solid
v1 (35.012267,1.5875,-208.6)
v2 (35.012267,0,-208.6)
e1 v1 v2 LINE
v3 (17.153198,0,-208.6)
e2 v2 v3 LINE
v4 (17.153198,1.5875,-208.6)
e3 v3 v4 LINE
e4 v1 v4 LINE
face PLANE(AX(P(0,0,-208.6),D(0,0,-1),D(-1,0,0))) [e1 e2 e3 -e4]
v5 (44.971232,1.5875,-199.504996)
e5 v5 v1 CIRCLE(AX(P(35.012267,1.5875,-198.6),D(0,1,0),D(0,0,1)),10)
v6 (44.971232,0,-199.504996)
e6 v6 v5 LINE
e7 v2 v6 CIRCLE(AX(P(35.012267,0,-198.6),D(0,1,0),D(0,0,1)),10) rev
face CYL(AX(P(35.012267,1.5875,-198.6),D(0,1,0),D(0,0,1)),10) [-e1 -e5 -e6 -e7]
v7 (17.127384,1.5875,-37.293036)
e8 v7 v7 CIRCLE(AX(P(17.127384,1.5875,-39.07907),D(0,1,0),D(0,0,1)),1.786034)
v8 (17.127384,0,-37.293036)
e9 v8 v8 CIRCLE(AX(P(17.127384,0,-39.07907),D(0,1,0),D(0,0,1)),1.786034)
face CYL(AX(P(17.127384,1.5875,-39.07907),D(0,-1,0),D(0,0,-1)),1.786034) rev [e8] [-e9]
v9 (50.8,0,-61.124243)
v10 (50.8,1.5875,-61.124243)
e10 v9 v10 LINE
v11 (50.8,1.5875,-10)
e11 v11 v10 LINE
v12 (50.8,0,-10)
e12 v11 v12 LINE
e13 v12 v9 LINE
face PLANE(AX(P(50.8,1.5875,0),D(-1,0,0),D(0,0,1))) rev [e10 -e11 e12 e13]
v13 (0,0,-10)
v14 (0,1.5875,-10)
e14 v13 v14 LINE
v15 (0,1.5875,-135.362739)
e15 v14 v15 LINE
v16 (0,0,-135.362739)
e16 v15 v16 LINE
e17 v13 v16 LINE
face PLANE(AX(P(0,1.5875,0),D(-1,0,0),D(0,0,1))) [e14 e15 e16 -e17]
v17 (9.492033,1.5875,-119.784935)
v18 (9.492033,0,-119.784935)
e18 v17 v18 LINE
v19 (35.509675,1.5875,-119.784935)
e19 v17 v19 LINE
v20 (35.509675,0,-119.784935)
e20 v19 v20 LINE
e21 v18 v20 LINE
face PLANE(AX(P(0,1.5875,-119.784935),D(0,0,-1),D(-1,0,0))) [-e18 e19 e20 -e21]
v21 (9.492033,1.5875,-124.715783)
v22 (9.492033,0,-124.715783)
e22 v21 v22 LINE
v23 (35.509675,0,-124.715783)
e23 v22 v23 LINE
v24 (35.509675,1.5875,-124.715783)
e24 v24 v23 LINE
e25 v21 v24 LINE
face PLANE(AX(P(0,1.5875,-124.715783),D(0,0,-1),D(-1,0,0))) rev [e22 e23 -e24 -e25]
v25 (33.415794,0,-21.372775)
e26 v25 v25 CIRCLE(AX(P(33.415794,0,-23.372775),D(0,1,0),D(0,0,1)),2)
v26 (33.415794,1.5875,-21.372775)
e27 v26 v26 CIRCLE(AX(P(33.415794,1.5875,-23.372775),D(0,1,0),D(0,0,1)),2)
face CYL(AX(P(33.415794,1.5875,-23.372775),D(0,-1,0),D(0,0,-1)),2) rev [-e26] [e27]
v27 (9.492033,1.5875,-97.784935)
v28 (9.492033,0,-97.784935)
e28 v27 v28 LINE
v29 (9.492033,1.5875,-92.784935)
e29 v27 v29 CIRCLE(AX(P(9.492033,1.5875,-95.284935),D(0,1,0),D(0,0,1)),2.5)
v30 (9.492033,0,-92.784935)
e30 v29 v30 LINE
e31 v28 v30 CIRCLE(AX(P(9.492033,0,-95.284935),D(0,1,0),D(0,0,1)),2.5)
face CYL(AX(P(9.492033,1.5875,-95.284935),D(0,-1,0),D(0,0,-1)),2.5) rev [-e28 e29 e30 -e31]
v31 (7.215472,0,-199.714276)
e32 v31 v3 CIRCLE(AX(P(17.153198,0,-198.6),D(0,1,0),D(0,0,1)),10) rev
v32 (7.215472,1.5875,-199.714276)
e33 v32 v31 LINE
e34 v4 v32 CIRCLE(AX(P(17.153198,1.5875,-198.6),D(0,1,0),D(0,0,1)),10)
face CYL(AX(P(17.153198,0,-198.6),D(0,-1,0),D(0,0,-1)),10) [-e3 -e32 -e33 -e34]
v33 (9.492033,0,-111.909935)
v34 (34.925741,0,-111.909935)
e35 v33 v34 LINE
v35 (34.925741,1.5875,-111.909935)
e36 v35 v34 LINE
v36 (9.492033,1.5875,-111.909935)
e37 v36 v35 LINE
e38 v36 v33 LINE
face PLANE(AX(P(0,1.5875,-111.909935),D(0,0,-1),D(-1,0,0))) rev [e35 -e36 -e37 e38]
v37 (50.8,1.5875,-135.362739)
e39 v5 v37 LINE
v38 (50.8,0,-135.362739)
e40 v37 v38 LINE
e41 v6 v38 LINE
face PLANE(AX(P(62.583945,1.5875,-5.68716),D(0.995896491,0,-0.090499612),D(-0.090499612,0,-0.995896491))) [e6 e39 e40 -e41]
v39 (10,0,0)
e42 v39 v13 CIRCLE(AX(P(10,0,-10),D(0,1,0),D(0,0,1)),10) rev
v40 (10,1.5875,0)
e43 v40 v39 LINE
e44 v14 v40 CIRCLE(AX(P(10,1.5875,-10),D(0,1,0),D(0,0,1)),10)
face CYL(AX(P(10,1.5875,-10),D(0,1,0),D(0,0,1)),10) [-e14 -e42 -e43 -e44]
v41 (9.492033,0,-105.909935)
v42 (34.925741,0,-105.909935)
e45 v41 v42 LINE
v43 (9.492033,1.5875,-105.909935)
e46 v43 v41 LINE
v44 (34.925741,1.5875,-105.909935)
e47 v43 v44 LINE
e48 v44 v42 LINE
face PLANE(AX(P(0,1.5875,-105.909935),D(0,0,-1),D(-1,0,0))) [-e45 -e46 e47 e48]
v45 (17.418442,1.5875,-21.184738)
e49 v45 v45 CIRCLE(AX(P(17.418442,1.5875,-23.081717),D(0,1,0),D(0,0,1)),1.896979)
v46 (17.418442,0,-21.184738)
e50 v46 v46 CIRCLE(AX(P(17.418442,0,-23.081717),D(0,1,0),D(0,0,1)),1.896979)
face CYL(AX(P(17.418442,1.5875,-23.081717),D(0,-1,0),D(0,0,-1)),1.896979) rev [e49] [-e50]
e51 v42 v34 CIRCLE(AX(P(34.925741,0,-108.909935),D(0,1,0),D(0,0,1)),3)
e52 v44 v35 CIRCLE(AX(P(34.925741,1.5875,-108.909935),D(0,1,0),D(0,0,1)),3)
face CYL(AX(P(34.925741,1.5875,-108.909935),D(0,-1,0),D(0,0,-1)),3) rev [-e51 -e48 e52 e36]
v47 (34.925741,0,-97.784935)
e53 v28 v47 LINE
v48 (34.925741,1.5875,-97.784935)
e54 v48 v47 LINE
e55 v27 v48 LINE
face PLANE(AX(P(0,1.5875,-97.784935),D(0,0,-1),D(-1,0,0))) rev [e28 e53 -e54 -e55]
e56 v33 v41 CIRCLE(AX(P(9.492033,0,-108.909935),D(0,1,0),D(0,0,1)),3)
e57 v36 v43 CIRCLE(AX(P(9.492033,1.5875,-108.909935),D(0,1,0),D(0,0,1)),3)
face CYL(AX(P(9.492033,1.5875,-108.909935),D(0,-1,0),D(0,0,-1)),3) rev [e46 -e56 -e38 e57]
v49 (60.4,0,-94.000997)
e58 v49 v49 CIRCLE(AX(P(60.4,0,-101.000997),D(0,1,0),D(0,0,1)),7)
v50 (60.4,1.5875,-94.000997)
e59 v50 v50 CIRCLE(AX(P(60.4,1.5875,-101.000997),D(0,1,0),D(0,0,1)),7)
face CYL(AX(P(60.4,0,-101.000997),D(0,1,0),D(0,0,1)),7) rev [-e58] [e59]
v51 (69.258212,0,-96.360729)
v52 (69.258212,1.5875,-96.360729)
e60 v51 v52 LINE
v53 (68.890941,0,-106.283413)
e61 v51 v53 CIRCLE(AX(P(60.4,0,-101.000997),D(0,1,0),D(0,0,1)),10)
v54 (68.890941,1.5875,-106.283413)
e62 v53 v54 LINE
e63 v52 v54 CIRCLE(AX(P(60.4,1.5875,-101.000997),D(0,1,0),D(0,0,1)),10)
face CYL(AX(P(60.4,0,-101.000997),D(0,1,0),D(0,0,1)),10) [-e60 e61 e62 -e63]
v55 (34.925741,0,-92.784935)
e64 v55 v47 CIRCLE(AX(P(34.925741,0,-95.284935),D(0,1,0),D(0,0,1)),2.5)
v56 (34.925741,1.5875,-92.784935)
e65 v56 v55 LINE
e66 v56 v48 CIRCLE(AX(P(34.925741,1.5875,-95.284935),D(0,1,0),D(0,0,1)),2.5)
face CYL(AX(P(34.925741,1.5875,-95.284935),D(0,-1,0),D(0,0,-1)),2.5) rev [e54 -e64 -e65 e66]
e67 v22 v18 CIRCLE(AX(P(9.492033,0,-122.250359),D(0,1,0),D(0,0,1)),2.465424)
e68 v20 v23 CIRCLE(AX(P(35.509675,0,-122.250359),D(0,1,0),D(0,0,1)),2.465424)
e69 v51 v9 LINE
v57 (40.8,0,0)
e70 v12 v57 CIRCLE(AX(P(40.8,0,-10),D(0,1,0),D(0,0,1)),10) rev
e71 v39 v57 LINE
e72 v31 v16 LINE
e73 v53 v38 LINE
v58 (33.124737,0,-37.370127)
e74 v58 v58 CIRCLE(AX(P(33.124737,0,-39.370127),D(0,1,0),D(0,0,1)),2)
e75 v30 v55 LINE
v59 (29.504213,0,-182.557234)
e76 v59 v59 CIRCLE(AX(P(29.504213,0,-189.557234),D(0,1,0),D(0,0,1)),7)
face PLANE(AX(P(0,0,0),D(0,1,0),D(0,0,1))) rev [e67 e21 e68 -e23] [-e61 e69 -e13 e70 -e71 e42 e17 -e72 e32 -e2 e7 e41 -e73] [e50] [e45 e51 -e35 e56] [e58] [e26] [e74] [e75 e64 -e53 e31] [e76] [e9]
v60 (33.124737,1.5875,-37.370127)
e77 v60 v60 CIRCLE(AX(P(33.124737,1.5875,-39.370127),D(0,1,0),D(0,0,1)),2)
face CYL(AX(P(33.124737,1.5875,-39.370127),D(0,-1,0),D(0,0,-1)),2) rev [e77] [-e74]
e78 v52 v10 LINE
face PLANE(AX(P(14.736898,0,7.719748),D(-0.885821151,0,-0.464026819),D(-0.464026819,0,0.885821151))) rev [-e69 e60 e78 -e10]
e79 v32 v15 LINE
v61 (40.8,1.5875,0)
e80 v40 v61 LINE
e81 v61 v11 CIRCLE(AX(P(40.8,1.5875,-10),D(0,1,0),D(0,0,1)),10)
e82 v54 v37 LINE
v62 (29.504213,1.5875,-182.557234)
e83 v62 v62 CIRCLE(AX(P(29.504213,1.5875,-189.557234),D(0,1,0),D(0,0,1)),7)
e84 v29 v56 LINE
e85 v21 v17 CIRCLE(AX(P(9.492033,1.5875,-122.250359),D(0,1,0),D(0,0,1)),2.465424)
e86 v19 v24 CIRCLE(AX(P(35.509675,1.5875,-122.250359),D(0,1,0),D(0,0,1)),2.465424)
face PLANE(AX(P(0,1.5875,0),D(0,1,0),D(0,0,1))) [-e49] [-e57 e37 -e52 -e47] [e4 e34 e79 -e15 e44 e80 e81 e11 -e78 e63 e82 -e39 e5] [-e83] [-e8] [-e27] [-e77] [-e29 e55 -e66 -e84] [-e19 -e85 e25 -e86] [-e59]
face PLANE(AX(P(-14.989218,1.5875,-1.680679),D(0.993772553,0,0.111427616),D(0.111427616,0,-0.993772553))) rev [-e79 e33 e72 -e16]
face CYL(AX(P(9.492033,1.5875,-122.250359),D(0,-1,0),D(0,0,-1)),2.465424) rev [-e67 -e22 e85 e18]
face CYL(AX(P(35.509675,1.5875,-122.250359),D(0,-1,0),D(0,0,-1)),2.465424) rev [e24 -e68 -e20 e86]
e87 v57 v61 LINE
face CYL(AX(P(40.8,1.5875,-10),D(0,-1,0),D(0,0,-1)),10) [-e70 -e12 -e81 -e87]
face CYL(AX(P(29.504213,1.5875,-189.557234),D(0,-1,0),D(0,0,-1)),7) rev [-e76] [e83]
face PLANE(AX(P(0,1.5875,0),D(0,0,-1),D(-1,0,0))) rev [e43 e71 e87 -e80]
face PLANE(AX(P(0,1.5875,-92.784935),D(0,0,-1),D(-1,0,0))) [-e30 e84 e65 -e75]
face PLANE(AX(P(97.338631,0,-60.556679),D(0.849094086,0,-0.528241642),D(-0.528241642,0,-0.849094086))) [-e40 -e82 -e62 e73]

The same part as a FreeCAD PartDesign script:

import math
import FreeCAD as App
import Part
import Sketcher
Q = App.Units.Quantity


def edges_at(feature, points):
    """Names of the edges that pass closest to the given points."""
    edges = feature.Shape.Edges
    near = lambda p: min(range(len(edges)), key=lambda i: edges[i].distToShape(Part.Vertex(*p))[0])
    return sorted({f"Edge{near(p) + 1}" for p in points})


def add_polygon(sketch, points):
    """Adds a closed chain of lines whose ends are joined by coincident constraints."""
    first, n = sketch.GeometryCount, len(points)
    for a, b in zip(points, points[1:] + points[:1]):
        sketch.addGeometry(Part.LineSegment(App.Vector(*a, 0), App.Vector(*b, 0)), False)
    for i in range(n):
        sketch.addConstraint(Sketcher.Constraint("Coincident", first + i, 2, first + (i + 1) % n, 1))

doc = App.newDocument("Part")
params = doc.addObject("Spreadsheet::Sheet", "Params")
for row, (alias, value) in enumerate([
    ("sketch1_diameter", "4 mm"),
    ("sketch1_diameter2", "14 mm"),
    ("sketch1_radius", "10 mm"),
    ("sketch1_radius2", "3 mm"),
    ("sketch1_radius3", "2.5 mm"),
    ("pad1_length", "1.5875 mm"),
    ("pocket1_length", "20 mm"),
    ("fillet_radius", "10 mm"),
    ("fillet2_radius", "10 mm"),
    ("sketch3_radius", "10 mm"),
    ("pad2_length", "1.5875 mm"),
    ("sketch4_diameter", "14 mm"),
    ("pocket2_length", "1.5875 mm"),
], start=1):
    params.set(f"A{row}", alias)
    params.set(f"B{row}", "=" + value)
    params.setAlias(f"B{row}", alias)

body = doc.addObject("PartDesign::Body", "Body")

sketch1 = body.newObject("Sketcher::SketchObject", "Sketch")
sketch1.AttachmentSupport = (doc.getObject("XZ_Plane"), [""])
sketch1.MapMode = "FlatFace"
sketch1.addGeometry([
    Part.LineSegment(App.Vector(42.3, -228.6, 0), App.Vector(10.5, -228.6, 0)),
    Part.LineSegment(App.Vector(10.5, -228.6, 0), App.Vector(0, -135.4, 0)),
    Part.LineSegment(App.Vector(0, -135.4, 0), App.Vector(0, 0, 0)),
    Part.LineSegment(App.Vector(0, 0, 0), App.Vector(50.8, 0, 0)),
    Part.LineSegment(App.Vector(50.8, 0, 0), App.Vector(50.8, -98.2, 0)),
    Part.ArcOfCircle(Part.Circle(App.Vector(60.4, -101, 0), App.Vector(0, 0, 1), 10), math.radians(164), math.radians(196)),
    Part.LineSegment(App.Vector(50.8, -103.8, 0), App.Vector(50.8, -135.4, 0)),
    Part.LineSegment(App.Vector(50.8, -135.4, 0), App.Vector(42.3, -228.6, 0)),
    Part.Circle(App.Vector(17.4, -23.1, 0), App.Vector(0, 0, 1), 1.9),
    Part.Circle(App.Vector(17.1, -39.1, 0), App.Vector(0, 0, 1), 1.8),
    Part.ArcOfCircle(Part.Circle(App.Vector(34.9, -95.3, 0), App.Vector(0, 0, 1), 2.5), math.radians(0), math.radians(90)),
    Part.LineSegment(App.Vector(34.9, -92.8, 0), App.Vector(9.5, -92.8, 0)),
    Part.ArcOfCircle(Part.Circle(App.Vector(9.5, -95.3, 0), App.Vector(0, 0, 1), 2.5), math.radians(90), math.radians(270)),
    Part.LineSegment(App.Vector(9.5, -97.8, 0), App.Vector(34.9, -97.8, 0)),
    Part.ArcOfCircle(Part.Circle(App.Vector(34.9, -95.3, 0), App.Vector(0, 0, 1), 2.5), math.radians(-90), math.radians(0)),
    Part.Circle(App.Vector(33.4, -23.4, 0), App.Vector(0, 0, 1), 2),
    Part.Circle(App.Vector(33.1, -39.4, 0), App.Vector(0, 0, 1), 2),
    Part.ArcOfCircle(Part.Circle(App.Vector(34.9, -108.9, 0), App.Vector(0, 0, 1), 3), math.radians(0), math.radians(90)),
    Part.LineSegment(App.Vector(34.9, -105.9, 0), App.Vector(9.5, -105.9, 0)),
    Part.ArcOfCircle(Part.Circle(App.Vector(9.5, -108.9, 0), App.Vector(0, 0, 1), 3), math.radians(90), math.radians(270)),
    Part.LineSegment(App.Vector(9.5, -111.9, 0), App.Vector(34.9, -111.9, 0)),
    Part.ArcOfCircle(Part.Circle(App.Vector(34.9, -108.9, 0), App.Vector(0, 0, 1), 3), math.radians(-90), math.radians(0)),
    Part.ArcOfCircle(Part.Circle(App.Vector(35.5, -122.3, 0), App.Vector(0, 0, 1), 2.5), math.radians(0), math.radians(90)),
    Part.LineSegment(App.Vector(35.5, -119.8, 0), App.Vector(9.5, -119.8, 0)),
    Part.ArcOfCircle(Part.Circle(App.Vector(9.5, -122.3, 0), App.Vector(0, 0, 1), 2.5), math.radians(90), math.radians(270)),
    Part.LineSegment(App.Vector(9.5, -124.7, 0), App.Vector(35.5, -124.7, 0)),
    Part.ArcOfCircle(Part.Circle(App.Vector(35.5, -122.3, 0), App.Vector(0, 0, 1), 2.5), math.radians(-90), math.radians(0)),
    Part.Circle(App.Vector(29.5, -189.6, 0), App.Vector(0, 0, 1), 7),
], False)
sketch1.addConstraint([
    Sketcher.Constraint("Coincident", 0, 2, 1, 1),
    Sketcher.Constraint("Coincident", 1, 2, 2, 1),
    Sketcher.Constraint("Coincident", 2, 2, 3, 1),
    Sketcher.Constraint("Coincident", 3, 2, 4, 1),
    Sketcher.Constraint("Coincident", 4, 2, 5, 1),
    Sketcher.Constraint("Coincident", 5, 2, 6, 1),
    Sketcher.Constraint("Coincident", 6, 2, 7, 1),
    Sketcher.Constraint("Coincident", 7, 2, 0, 1),
    Sketcher.Constraint("Tangent", 10, 2, 11, 1),
    Sketcher.Constraint("Tangent", 11, 2, 12, 1),
    Sketcher.Constraint("Tangent", 12, 2, 13, 1),
    Sketcher.Constraint("Tangent", 13, 2, 14, 1),
    Sketcher.Constraint("Tangent", 14, 2, 10, 1),
    Sketcher.Constraint("Tangent", 17, 2, 18, 1),
    Sketcher.Constraint("Tangent", 18, 2, 19, 1),
    Sketcher.Constraint("Tangent", 19, 2, 20, 1),
    Sketcher.Constraint("Tangent", 20, 2, 21, 1),
    Sketcher.Constraint("Tangent", 21, 2, 17, 1),
    Sketcher.Constraint("Tangent", 22, 2, 23, 1),
    Sketcher.Constraint("Tangent", 23, 2, 24, 1),
    Sketcher.Constraint("Tangent", 24, 2, 25, 1),
    Sketcher.Constraint("Tangent", 25, 2, 26, 1),
    Sketcher.Constraint("Tangent", 26, 2, 22, 1),
    Sketcher.Constraint("Horizontal", 0),
    Sketcher.Constraint("Vertical", 2),
    Sketcher.Constraint("Horizontal", 3),
    Sketcher.Constraint("Vertical", 4),
    Sketcher.Constraint("Vertical", 6),
    Sketcher.Constraint("Horizontal", 11),
    Sketcher.Constraint("Horizontal", 13),
    Sketcher.Constraint("Horizontal", 18),
    Sketcher.Constraint("Horizontal", 20),
    Sketcher.Constraint("Horizontal", 23),
    Sketcher.Constraint("Horizontal", 25),
    Sketcher.Constraint("Coincident", 2, 2, -1, 1),
    Sketcher.Constraint("Equal", 10, 12),
    Sketcher.Constraint("Equal", 15, 16),
    Sketcher.Constraint("Equal", 17, 19),
    Sketcher.Constraint("Equal", 22, 24),
    Sketcher.Constraint("Horizontal", 1, 2, 6, 2),
    Sketcher.Constraint("Horizontal", 12, 3, 14, 2),
    Sketcher.Constraint("Horizontal", 19, 3, 21, 2),
    Sketcher.Constraint("Horizontal", 24, 3, 26, 2),
    Sketcher.Constraint("Vertical", 14, 3, 17, 3),
    Sketcher.Constraint("Vertical", 12, 3, 19, 3),
    Sketcher.Constraint("Vertical", 19, 3, 24, 3),
    Sketcher.Constraint("Vertical", 4, 2, 5, 2),
    Sketcher.Constraint("Diameter", 15, Q("4 mm")),
    Sketcher.Constraint("Diameter", 27, Q("14 mm")),
    Sketcher.Constraint("Radius", 5, Q("10 mm")),
    Sketcher.Constraint("Radius", 17, Q("3 mm")),
    Sketcher.Constraint("Radius", 10, Q("2.5 mm")),
    Sketcher.Constraint("DistanceX", 3, 1, 3, 2, Q("50.8 mm")),
    Sketcher.Constraint("DistanceX", -1, 1, 5, 3, Q("60.4 mm")),
    Sketcher.Constraint("DistanceY", 0, 2, -1, 1, Q("228.6 mm")),
    Sketcher.Constraint("Diameter", 8, Q("3.793958 mm")),
    Sketcher.Constraint("Diameter", 9, Q("3.572067 mm")),
    Sketcher.Constraint("Radius", 22, Q("2.465424 mm")),
    Sketcher.Constraint("DistanceY", 17, 3, 10, 3, Q("13.625 mm")),
    Sketcher.Constraint("DistanceY", 22, 2, 20, 2, Q("7.875 mm")),
    Sketcher.Constraint("DistanceY", 2, 1, 2, 2, Q("135.362739 mm")),
    Sketcher.Constraint("DistanceX", -1, 1, 26, 2, Q("37.975099 mm")),
    Sketcher.Constraint("DistanceX", 8, 3, 10, 3, Q("17.507299 mm")),
    Sketcher.Constraint("DistanceY", 27, 3, 17, 3, Q("80.647299 mm")),
    Sketcher.Constraint("Distance", 1, Q("93.821529 mm")),
    Sketcher.Constraint("DistanceX", 0, 2, 0, 1, Q("31.872987 mm")),
    Sketcher.Constraint("DistanceX", 11, 2, 11, 1, Q("25.433708 mm")),
    Sketcher.Constraint("DistanceX", 23, 2, 23, 1, Q("26.017642 mm")),
    Sketcher.Constraint("DistanceY", 4, 2, 4, 1, Q("98.200997 mm")),
    Sketcher.Constraint("DistanceY", 9, 3, -1, 1, Q("39.07907 mm")),
    Sketcher.Constraint("DistanceY", 22, 3, -1, 1, Q("122.250359 mm")),
    Sketcher.Constraint("DistanceY", 5, 3, 8, 3, Q("77.91928 mm")),
    Sketcher.Constraint("DistanceX", 12, 3, 9, 3, Q("7.635351 mm")),
    Sketcher.Constraint("DistanceX", 9, 3, 15, 3, Q("16.28841 mm")),
    Sketcher.Constraint("DistanceY", 10, 3, 15, 3, Q("71.912161 mm")),
    Sketcher.Constraint("DistanceY", 16, 3, 8, 3, Q("16.28841 mm")),
    Sketcher.Constraint("DistanceX", 27, 3, 22, 3, Q("6.005462 mm")),
    Sketcher.Constraint("DistanceX", -1, 1, 16, 3, Q("33.124737 mm")),
])
sketch1.setExpression("Constraints[47]", "Params.sketch1_diameter")
sketch1.setExpression("Constraints[48]", "Params.sketch1_diameter2")
sketch1.setExpression("Constraints[49]", "Params.sketch1_radius")
sketch1.setExpression("Constraints[50]", "Params.sketch1_radius2")
sketch1.setExpression("Constraints[51]", "Params.sketch1_radius3")
pad1 = body.newObject("PartDesign::Pad", "Pad")
pad1.Profile = sketch1
pad1.setExpression("Length", "Params.pad1_length")
pad1.Reversed = True

sketch2 = body.newObject("Sketcher::SketchObject", "Sketch001")
sketch2.AttachmentSupport = (doc.getObject("XY_Plane"), [""])
sketch2.MapMode = "FlatFace"
sketch2.AttachmentOffset = App.Placement(App.Vector(0, 0, -228.6), App.Rotation())
add_polygon(sketch2, [(61, 12), (61, -16), (-5, -16), (-5, 12)])
sketch2.addConstraint([
    Sketcher.Constraint("Vertical", 0),
    Sketcher.Constraint("Horizontal", 1),
    Sketcher.Constraint("Vertical", 2),
    Sketcher.Constraint("Horizontal", 3),
    Sketcher.Constraint("DistanceY", 0, 2, 0, 1, Q("27.800261 mm")),
    Sketcher.Constraint("DistanceX", 1, 2, 1, 1, Q("66.272407 mm")),
    Sketcher.Constraint("DistanceY", 0, 2, -1, 1, Q("15.881071 mm")),
    Sketcher.Constraint("DistanceX", -1, 1, 0, 2, Q("61.310894 mm")),
])
pocket1 = body.newObject("PartDesign::Pocket", "Pocket")
pocket1.Profile = sketch2
pocket1.setExpression("Length", "Params.pocket1_length")
pocket1.Reversed = True
doc.recompute()

fillet = body.newObject("PartDesign::Fillet", "Fillet")
fillet.Base = (pocket1, edges_at(pocket1, [(44.145, 0.794, -208.6)]))
fillet.setExpression("Radius", "Params.fillet_radius")
doc.recompute()

fillet2 = body.newObject("PartDesign::Fillet", "Fillet001")
fillet2.Base = (fillet, edges_at(fillet, [(50.8, 0.794, 0), (0, 0.794, 0), (8.212, 0.794, -208.6)]))
fillet2.setExpression("Radius", "Params.fillet2_radius")

sketch3 = body.newObject("Sketcher::SketchObject", "Sketch002")
sketch3.AttachmentSupport = (doc.getObject("XZ_Plane"), [""])
sketch3.MapMode = "FlatFace"
sketch3.addGeometry([
    Part.LineSegment(App.Vector(51, -135, 0), App.Vector(51, -104, 0)),
    Part.ArcOfCircle(Part.Circle(App.Vector(60, -101, 0), App.Vector(0, 0, 1), 10), math.radians(164), math.radians(196)),
    Part.LineSegment(App.Vector(51, -98, 0), App.Vector(51, -61, 0)),
    Part.LineSegment(App.Vector(51, -61, 0), App.Vector(69, -96, 0)),
    Part.ArcOfCircle(Part.Circle(App.Vector(60, -101, 0), App.Vector(0, 0, 1), 10), math.radians(-32), math.radians(28)),
    Part.LineSegment(App.Vector(69, -106, 0), App.Vector(51, -135, 0)),
], False)
sketch3.addConstraint([
    Sketcher.Constraint("Coincident", 0, 2, 1, 2),
    Sketcher.Constraint("Coincident", 1, 1, 2, 1),
    Sketcher.Constraint("Coincident", 2, 2, 3, 1),
    Sketcher.Constraint("Tangent", 3, 2, 4, 2),
    Sketcher.Constraint("Tangent", 4, 1, 5, 1),
    Sketcher.Constraint("Coincident", 5, 2, 0, 1),
    Sketcher.Constraint("Vertical", 0),
    Sketcher.Constraint("Vertical", 2),
    Sketcher.Constraint("Coincident", 4, 3, 1, 3),
    Sketcher.Constraint("Equal", 1, 4),
    Sketcher.Constraint("Vertical", 0, 2, 1, 1),
    Sketcher.Constraint("Radius", 1, Q("10 mm")),
    Sketcher.Constraint("DistanceX", -1, 1, 1, 3, Q("60.4 mm")),
    Sketcher.Constraint("DistanceX", -1, 1, 0, 2, Q("50.8 mm")),
    Sketcher.Constraint("Distance", 3, Q("39.778329 mm")),
    Sketcher.Constraint("DistanceY", 0, 1, 0, 2, Q("31.561742 mm")),
    Sketcher.Constraint("DistanceY", 3, 2, -1, 1, Q("96.360729 mm")),
])
sketch3.setExpression("Constraints[11]", "Params.sketch3_radius")
pad2 = body.newObject("PartDesign::Pad", "Pad001")
pad2.Profile = sketch3
pad2.setExpression("Length", "Params.pad2_length")
pad2.Reversed = True

sketch4 = body.newObject("Sketcher::SketchObject", "Sketch003")
sketch4.AttachmentSupport = (doc.getObject("XZ_Plane"), [""])
sketch4.MapMode = "FlatFace"
sketch4.AttachmentOffset = App.Placement(App.Vector(0, 0, -1.5875), App.Rotation())
sketch4.addGeometry(Part.Circle(App.Vector(60, -101, 0), App.Vector(0, 0, 1), 7), False)
sketch4.addConstraint([
    Sketcher.Constraint("Diameter", 0, Q("14 mm")),
    Sketcher.Constraint("DistanceX", -1, 1, 0, 3, Q("60.4 mm")),
    Sketcher.Constraint("DistanceY", 0, 3, -1, 1, Q("101.000997 mm")),
])
sketch4.setExpression("Constraints[0]", "Params.sketch4_diameter")
pocket2 = body.newObject("PartDesign::Pocket", "Pocket001")
pocket2.Profile = sketch4
pocket2.setExpression("Length", "Params.pocket2_length")
pocket2.Reversed = True

doc.recompute()
